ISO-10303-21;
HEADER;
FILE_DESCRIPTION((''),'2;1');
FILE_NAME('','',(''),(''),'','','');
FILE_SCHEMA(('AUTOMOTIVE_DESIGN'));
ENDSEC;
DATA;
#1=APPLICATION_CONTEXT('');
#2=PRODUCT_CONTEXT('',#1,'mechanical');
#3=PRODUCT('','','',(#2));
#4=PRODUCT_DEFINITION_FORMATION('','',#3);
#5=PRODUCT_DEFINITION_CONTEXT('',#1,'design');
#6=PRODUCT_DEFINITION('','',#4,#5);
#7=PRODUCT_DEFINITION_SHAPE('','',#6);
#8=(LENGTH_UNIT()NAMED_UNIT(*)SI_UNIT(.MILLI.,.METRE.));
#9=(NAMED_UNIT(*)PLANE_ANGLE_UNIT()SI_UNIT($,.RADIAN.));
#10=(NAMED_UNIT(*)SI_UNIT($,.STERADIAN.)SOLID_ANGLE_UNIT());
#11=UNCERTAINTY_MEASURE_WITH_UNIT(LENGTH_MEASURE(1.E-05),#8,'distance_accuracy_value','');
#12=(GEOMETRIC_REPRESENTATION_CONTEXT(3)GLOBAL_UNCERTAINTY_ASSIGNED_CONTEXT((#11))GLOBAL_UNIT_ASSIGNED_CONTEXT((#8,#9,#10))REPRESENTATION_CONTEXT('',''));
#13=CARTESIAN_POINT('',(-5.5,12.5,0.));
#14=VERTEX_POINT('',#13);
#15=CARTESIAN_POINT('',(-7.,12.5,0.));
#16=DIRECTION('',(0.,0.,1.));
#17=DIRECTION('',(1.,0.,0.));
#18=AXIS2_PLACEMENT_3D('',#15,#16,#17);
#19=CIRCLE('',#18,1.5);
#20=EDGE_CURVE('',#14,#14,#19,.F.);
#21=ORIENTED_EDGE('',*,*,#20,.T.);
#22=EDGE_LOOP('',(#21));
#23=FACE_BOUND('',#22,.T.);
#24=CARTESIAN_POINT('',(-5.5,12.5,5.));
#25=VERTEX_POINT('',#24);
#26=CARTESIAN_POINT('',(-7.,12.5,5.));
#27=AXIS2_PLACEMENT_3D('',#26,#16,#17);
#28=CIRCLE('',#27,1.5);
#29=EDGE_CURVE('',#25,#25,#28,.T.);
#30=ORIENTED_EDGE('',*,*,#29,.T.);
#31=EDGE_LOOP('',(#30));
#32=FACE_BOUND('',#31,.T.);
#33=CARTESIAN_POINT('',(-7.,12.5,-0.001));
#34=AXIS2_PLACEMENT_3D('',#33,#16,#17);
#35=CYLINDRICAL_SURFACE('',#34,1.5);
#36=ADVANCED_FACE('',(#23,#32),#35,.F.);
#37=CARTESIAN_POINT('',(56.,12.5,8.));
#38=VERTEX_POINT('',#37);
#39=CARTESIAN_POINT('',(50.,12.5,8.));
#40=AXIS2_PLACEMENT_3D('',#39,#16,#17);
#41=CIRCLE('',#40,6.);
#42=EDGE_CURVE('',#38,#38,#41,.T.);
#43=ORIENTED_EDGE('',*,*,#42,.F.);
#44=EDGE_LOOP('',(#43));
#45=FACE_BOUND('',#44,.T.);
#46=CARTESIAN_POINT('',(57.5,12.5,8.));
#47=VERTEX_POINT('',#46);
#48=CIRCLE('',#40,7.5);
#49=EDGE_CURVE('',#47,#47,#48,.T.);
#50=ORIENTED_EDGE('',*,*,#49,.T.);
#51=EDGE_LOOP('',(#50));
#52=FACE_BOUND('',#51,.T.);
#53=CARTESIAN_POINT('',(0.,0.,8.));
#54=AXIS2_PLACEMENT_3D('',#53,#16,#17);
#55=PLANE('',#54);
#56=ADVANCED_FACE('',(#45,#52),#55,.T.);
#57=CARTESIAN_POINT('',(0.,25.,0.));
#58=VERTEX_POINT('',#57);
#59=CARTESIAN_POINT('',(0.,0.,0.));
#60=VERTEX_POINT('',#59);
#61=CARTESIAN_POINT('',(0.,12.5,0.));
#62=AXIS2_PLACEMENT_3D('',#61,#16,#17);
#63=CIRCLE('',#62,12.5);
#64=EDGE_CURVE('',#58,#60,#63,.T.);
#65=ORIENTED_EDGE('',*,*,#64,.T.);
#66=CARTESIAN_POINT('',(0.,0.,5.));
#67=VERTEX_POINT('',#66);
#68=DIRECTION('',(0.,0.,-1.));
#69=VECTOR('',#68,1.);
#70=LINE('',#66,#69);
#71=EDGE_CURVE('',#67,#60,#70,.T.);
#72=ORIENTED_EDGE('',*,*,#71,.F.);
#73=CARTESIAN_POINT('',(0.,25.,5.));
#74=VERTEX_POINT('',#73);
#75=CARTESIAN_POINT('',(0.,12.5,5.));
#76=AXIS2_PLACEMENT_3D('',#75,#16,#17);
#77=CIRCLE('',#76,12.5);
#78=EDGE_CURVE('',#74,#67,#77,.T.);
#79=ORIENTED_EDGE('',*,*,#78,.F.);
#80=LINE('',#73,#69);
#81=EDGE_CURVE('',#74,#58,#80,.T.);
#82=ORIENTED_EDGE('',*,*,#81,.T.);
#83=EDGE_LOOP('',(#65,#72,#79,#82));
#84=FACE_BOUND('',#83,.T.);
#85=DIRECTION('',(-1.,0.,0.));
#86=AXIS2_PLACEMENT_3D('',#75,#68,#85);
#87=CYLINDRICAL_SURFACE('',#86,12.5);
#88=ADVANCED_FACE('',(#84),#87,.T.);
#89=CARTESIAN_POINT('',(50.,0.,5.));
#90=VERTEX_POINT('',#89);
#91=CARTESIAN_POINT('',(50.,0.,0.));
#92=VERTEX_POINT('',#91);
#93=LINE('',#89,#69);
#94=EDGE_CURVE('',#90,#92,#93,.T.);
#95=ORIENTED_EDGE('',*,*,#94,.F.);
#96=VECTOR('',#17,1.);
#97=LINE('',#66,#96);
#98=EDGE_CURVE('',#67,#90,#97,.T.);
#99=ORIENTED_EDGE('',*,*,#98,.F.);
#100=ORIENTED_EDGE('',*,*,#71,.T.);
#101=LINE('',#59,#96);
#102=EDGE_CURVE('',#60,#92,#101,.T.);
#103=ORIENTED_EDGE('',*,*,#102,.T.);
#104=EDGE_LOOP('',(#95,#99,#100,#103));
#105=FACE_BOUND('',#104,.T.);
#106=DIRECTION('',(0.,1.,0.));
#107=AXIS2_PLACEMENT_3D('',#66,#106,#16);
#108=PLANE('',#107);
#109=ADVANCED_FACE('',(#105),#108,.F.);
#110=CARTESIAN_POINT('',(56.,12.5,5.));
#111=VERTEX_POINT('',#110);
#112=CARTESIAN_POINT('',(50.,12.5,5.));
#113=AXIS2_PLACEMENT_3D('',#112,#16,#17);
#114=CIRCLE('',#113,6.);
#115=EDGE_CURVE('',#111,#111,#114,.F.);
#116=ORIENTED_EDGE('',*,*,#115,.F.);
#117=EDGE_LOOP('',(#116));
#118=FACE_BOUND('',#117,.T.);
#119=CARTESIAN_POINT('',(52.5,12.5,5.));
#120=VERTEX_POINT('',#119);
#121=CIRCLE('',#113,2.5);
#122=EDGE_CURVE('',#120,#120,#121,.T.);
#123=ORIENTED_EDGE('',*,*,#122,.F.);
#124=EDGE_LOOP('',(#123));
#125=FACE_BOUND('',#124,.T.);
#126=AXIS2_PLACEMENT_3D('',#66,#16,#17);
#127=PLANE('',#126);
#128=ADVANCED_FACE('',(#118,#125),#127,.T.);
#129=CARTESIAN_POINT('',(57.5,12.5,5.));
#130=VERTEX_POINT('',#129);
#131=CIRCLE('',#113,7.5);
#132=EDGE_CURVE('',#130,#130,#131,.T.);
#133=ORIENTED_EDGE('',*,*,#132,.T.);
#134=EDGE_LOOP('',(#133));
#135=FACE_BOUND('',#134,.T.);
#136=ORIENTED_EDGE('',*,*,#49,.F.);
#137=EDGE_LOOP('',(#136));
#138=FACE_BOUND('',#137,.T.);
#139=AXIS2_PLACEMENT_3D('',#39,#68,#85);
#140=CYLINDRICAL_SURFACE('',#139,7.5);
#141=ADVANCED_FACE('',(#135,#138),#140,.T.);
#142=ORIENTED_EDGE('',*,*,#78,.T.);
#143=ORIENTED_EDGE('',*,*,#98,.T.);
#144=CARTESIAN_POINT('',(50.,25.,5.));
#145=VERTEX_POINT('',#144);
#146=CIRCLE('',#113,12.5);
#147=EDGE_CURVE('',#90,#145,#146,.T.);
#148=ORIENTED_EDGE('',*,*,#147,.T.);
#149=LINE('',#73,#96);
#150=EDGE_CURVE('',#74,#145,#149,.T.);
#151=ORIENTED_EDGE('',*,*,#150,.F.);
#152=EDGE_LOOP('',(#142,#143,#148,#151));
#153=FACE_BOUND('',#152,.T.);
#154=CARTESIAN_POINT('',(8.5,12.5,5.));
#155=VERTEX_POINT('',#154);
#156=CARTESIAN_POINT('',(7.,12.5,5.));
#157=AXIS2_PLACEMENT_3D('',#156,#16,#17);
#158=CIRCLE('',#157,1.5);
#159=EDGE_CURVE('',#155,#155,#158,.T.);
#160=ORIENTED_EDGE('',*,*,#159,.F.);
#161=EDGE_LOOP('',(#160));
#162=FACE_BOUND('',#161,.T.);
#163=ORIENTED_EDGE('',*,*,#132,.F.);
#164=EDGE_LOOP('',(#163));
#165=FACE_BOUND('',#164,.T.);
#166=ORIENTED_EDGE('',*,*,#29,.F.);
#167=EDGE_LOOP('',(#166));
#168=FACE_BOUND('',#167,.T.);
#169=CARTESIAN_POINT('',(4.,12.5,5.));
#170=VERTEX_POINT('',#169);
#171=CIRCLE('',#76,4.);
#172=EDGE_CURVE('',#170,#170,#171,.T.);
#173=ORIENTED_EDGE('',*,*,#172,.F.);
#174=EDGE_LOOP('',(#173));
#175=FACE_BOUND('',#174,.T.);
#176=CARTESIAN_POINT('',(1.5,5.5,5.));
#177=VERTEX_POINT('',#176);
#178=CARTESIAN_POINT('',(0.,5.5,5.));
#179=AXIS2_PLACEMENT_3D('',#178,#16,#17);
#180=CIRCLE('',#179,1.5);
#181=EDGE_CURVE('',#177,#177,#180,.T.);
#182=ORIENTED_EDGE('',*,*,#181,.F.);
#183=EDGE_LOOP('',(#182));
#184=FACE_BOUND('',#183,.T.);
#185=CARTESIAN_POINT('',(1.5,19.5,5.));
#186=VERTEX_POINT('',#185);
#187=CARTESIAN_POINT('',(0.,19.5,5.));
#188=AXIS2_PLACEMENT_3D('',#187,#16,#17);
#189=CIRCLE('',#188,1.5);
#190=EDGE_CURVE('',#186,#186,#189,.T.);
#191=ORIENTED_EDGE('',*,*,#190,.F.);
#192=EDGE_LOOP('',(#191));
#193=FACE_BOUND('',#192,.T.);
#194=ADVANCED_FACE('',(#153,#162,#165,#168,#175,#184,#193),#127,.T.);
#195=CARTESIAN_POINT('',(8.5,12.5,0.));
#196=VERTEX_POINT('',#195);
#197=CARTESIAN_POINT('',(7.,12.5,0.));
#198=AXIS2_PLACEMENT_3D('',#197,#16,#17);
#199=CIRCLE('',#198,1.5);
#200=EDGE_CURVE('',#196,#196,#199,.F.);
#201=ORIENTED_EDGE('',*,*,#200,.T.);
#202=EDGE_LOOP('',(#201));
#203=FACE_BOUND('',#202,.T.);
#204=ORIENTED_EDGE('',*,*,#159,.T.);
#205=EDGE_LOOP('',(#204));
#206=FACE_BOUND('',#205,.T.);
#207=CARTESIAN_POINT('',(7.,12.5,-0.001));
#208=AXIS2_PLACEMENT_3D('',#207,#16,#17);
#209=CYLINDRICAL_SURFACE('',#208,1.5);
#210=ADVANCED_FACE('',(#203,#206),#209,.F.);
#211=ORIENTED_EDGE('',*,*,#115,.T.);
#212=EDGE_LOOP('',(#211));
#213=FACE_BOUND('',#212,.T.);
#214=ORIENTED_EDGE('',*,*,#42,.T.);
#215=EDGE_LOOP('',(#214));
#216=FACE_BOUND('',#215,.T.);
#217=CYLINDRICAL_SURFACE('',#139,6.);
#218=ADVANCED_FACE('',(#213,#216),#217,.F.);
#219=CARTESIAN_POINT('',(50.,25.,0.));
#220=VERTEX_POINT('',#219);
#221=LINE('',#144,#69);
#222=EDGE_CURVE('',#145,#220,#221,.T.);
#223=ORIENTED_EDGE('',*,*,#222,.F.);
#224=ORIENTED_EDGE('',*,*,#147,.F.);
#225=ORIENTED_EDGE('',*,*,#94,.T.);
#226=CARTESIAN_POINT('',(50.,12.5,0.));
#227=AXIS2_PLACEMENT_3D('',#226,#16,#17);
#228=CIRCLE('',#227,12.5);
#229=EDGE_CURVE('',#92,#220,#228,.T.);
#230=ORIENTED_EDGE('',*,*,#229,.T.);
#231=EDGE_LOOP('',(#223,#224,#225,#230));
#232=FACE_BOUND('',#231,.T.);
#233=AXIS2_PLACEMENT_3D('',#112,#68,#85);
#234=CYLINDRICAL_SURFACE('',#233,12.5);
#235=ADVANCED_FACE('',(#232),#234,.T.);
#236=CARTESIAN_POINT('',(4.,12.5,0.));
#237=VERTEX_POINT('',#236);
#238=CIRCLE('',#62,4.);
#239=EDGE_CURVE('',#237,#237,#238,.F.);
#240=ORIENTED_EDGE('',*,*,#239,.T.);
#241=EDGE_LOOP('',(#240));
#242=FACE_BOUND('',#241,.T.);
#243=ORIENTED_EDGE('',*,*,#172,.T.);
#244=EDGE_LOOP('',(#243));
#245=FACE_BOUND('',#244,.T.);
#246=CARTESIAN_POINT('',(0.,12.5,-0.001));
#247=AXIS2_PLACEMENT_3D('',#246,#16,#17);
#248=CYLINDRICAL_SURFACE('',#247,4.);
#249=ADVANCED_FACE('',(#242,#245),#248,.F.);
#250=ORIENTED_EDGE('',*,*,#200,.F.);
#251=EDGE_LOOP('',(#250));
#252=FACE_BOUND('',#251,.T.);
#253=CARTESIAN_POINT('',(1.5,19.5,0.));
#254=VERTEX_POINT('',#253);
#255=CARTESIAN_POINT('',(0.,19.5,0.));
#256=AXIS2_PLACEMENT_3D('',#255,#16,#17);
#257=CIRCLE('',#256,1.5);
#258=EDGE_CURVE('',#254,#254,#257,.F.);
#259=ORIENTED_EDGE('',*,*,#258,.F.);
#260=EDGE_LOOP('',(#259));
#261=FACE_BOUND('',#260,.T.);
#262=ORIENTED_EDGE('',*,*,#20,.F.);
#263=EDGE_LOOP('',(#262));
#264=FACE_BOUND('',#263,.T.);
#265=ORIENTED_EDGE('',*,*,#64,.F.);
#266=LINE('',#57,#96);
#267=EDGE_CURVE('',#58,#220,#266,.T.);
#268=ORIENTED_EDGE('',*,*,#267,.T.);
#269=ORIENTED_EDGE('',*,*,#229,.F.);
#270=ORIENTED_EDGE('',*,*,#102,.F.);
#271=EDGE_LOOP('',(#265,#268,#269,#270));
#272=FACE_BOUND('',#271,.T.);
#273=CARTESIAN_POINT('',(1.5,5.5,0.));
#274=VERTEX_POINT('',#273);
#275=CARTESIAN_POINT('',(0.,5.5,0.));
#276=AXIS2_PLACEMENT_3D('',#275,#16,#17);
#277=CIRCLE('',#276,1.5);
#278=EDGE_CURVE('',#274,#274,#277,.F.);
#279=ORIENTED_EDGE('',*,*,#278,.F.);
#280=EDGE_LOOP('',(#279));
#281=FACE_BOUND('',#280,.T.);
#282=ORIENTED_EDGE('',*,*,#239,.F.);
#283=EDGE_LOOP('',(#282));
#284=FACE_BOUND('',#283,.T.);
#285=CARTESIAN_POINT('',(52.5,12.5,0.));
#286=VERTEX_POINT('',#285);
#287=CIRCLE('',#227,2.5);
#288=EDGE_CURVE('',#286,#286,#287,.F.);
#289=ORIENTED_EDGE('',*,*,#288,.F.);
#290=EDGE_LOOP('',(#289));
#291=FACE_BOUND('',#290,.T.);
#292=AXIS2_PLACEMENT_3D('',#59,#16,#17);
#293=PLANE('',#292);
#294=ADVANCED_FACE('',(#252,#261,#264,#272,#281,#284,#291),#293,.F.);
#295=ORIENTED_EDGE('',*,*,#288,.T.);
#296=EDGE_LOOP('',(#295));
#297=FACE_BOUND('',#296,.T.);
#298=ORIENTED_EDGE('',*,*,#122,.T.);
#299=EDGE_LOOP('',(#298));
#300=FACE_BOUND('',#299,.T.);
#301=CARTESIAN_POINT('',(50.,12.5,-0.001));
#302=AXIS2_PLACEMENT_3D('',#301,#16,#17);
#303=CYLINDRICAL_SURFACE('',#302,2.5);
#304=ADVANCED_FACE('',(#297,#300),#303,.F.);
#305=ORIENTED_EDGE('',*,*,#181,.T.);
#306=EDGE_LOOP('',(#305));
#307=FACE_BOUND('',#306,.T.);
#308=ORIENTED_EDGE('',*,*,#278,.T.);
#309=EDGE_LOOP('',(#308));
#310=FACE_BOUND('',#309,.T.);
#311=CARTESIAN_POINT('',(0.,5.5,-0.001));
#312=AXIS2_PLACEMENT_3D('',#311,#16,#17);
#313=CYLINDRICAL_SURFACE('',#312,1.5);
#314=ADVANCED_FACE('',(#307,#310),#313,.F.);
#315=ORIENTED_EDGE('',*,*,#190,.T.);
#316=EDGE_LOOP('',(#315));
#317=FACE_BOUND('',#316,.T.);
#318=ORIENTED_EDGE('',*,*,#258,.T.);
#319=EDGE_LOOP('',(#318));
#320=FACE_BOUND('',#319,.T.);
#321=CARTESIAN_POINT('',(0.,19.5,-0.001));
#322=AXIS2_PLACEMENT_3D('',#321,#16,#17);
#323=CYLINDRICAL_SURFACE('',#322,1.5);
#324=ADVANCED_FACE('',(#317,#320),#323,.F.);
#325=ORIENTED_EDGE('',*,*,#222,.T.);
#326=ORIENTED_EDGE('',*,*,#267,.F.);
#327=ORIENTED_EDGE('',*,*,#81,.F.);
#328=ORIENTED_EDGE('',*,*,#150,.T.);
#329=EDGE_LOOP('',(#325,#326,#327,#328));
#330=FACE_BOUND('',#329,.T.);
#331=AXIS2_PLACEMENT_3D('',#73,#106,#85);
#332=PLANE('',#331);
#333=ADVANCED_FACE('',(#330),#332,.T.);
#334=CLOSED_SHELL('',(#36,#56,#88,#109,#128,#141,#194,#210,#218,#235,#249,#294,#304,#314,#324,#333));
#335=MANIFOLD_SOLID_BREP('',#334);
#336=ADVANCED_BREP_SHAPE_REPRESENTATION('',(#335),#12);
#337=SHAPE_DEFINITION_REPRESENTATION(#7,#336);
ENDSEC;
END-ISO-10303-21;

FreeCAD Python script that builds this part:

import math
import FreeCAD as App
import Part
import Sketcher
from FreeCAD import Vector

doc = App.newDocument("Part")
params = doc.addObject("Spreadsheet::Sheet", "Params")
for row, (alias, value) in enumerate([
    ("sketch1_radius", "12.5 mm"),
    ("sketch1_width", "50 mm"),
    ("pad1_length", "5 mm"),
    ("sketch2_diameter", "8 mm"),
    ("sketch3_diameter", "5 mm"),
    ("sketch4_diameter", "15 mm"),
    ("sketch4_diameter2", "12 mm"),
    ("pad2_length", "3 mm"),
    ("sketch5_diameter", "3 mm"),
    ("sketch6_diameter", "3 mm"),
    ("sketch7_diameter", "3 mm"),
    ("sketch8_diameter", "3 mm"),
], start=1):
    params.set(f"A{row}", alias)
    params.set(f"B{row}", "=" + value)
    params.setAlias(f"B{row}", alias)

body = doc.addObject("PartDesign::Body", "Body")

sketch1 = body.newObject("Sketcher::SketchObject", "Sketch")
sketch1.AttachmentSupport = (doc.getObject("XY_Plane"), [""])
sketch1.MapMode = "FlatFace"
sketch1.addGeometry(Part.LineSegment(Vector(0, 0, 0), Vector(50, 0, 0)), False)
sketch1.addGeometry(Part.ArcOfCircle(Part.Circle(Vector(50, 12, 0), Vector(0, 0, 1), 12), math.radians(-90), math.radians(90)), False)
sketch1.addGeometry(Part.LineSegment(Vector(50, 25, 0), Vector(0, 25, 0)), False)
sketch1.addGeometry(Part.ArcOfCircle(Part.Circle(Vector(0, 12, 0), Vector(0, 0, 1), 12), math.radians(90), math.radians(270)), False)
sketch1.addConstraint(Sketcher.Constraint("Tangent", 0, 2, 1, 1))
sketch1.addConstraint(Sketcher.Constraint("Tangent", 1, 2, 2, 1))
sketch1.addConstraint(Sketcher.Constraint("Tangent", 2, 2, 3, 1))
sketch1.addConstraint(Sketcher.Constraint("Tangent", 3, 2, 0, 1))
sketch1.addConstraint(Sketcher.Constraint("Horizontal", 0))
sketch1.addConstraint(Sketcher.Constraint("Horizontal", 2))
sketch1.addConstraint(Sketcher.Constraint("Coincident", 3, 2, -1, 1))
sketch1.addConstraint(Sketcher.Constraint("Radius", 1, 12.5))
sketch1.addConstraint(Sketcher.Constraint("DistanceX", 0, 1, 0, 2, 50.0))
sketch1.setExpression("Constraints[7]", "Params.sketch1_radius")
sketch1.setExpression("Constraints[8]", "Params.sketch1_width")
pad1 = body.newObject("PartDesign::Pad", "Pad")
pad1.Profile = sketch1
pad1.setExpression("Length", "Params.pad1_length")

sketch2 = body.newObject("Sketcher::SketchObject", "Sketch001")
sketch2.AttachmentSupport = (doc.getObject("XY_Plane"), [""])
sketch2.MapMode = "FlatFace"
sketch2.AttachmentOffset = App.Placement(Vector(0, 0, 5), App.Rotation())
sketch2.addGeometry(Part.Circle(Vector(0, 12.5, 0), Vector(0, 0, 1), 4), False)
sketch2.addConstraint(Sketcher.Constraint("PointOnObject", 0, 3, -2))
sketch2.addConstraint(Sketcher.Constraint("Diameter", 0, 8.0))
sketch2.addConstraint(Sketcher.Constraint("DistanceY", -1, 1, 0, 3, 12.5))
sketch2.setExpression("Constraints[1]", "Params.sketch2_diameter")
pocket1 = body.newObject("PartDesign::Pocket", "Pocket")
pocket1.Profile = sketch2
pocket1.Type = "UpToFirst"

sketch3 = body.newObject("Sketcher::SketchObject", "Sketch002")
sketch3.AttachmentSupport = (doc.getObject("XY_Plane"), [""])
sketch3.MapMode = "FlatFace"
sketch3.AttachmentOffset = App.Placement(Vector(0, 0, 5), App.Rotation())
sketch3.addGeometry(Part.Circle(Vector(50, 12.5, 0), Vector(0, 0, 1), 2.5), False)
sketch3.addConstraint(Sketcher.Constraint("Diameter", 0, 5.0))
sketch3.addConstraint(Sketcher.Constraint("DistanceX", -1, 1, 0, 3, 50.0))
sketch3.addConstraint(Sketcher.Constraint("DistanceY", -1, 1, 0, 3, 12.5))
sketch3.setExpression("Constraints[0]", "Params.sketch3_diameter")
pocket2 = body.newObject("PartDesign::Pocket", "Pocket001")
pocket2.Profile = sketch3
pocket2.Type = "UpToFirst"

sketch4 = body.newObject("Sketcher::SketchObject", "Sketch003")
sketch4.AttachmentSupport = (doc.getObject("XY_Plane"), [""])
sketch4.MapMode = "FlatFace"
sketch4.AttachmentOffset = App.Placement(Vector(0, 0, 5), App.Rotation())
sketch4.addGeometry(Part.Circle(Vector(50, 12, 0), Vector(0, 0, 1), 8), False)
sketch4.addGeometry(Part.Circle(Vector(50, 12, 0), Vector(0, 0, 1), 6), False)
sketch4.addConstraint(Sketcher.Constraint("Coincident", 1, 3, 0, 3))
sketch4.addConstraint(Sketcher.Constraint("Diameter", 0, 15.0))
sketch4.addConstraint(Sketcher.Constraint("Diameter", 1, 12.0))
sketch4.addConstraint(Sketcher.Constraint("DistanceX", -1, 1, 0, 3, 50.0))
sketch4.addConstraint(Sketcher.Constraint("DistanceY", -1, 1, 0, 3, 12.5))
sketch4.setExpression("Constraints[1]", "Params.sketch4_diameter")
sketch4.setExpression("Constraints[2]", "Params.sketch4_diameter2")
pad2 = body.newObject("PartDesign::Pad", "Pad001")
pad2.Profile = sketch4
pad2.setExpression("Length", "Params.pad2_length")

sketch5 = body.newObject("Sketcher::SketchObject", "Sketch004")
sketch5.AttachmentSupport = (doc.getObject("XY_Plane"), [""])
sketch5.MapMode = "FlatFace"
sketch5.AttachmentOffset = App.Placement(Vector(0, 0, 5), App.Rotation())
sketch5.addGeometry(Part.Circle(Vector(0, 19.5, 0), Vector(0, 0, 1), 1.5), False)
sketch5.addConstraint(Sketcher.Constraint("PointOnObject", 0, 3, -2))
sketch5.addConstraint(Sketcher.Constraint("Diameter", 0, 3.0))
sketch5.addConstraint(Sketcher.Constraint("DistanceY", -1, 1, 0, 3, 19.5))
sketch5.setExpression("Constraints[1]", "Params.sketch5_diameter")
pocket3 = body.newObject("PartDesign::Pocket", "Pocket002")
pocket3.Profile = sketch5
pocket3.Type = "UpToFirst"

sketch6 = body.newObject("Sketcher::SketchObject", "Sketch005")
sketch6.AttachmentSupport = (doc.getObject("XY_Plane"), [""])
sketch6.MapMode = "FlatFace"
sketch6.AttachmentOffset = App.Placement(Vector(0, 0, 5), App.Rotation())
sketch6.addGeometry(Part.Circle(Vector(0, 5.5, 0), Vector(0, 0, 1), 1.5), False)
sketch6.addConstraint(Sketcher.Constraint("PointOnObject", 0, 3, -2))
sketch6.addConstraint(Sketcher.Constraint("Diameter", 0, 3.0))
sketch6.addConstraint(Sketcher.Constraint("DistanceY", -1, 1, 0, 3, 5.5))
sketch6.setExpression("Constraints[1]", "Params.sketch6_diameter")
pocket4 = body.newObject("PartDesign::Pocket", "Pocket003")
pocket4.Profile = sketch6
pocket4.Type = "UpToFirst"

sketch7 = body.newObject("Sketcher::SketchObject", "Sketch006")
sketch7.AttachmentSupport = (doc.getObject("XY_Plane"), [""])
sketch7.MapMode = "FlatFace"
sketch7.AttachmentOffset = App.Placement(Vector(0, 0, 5), App.Rotation())
sketch7.addGeometry(Part.Circle(Vector(-7, 12.5, 0), Vector(0, 0, 1), 1.5), False)
sketch7.addConstraint(Sketcher.Constraint("Diameter", 0, 3.0))
sketch7.addConstraint(Sketcher.Constraint("DistanceX", 0, 3, -1, 1, 7.0))
sketch7.addConstraint(Sketcher.Constraint("DistanceY", -1, 1, 0, 3, 12.5))
sketch7.setExpression("Constraints[0]", "Params.sketch7_diameter")
pocket5 = body.newObject("PartDesign::Pocket", "Pocket004")
pocket5.Profile = sketch7
pocket5.Type = "UpToFirst"

sketch8 = body.newObject("Sketcher::SketchObject", "Sketch007")
sketch8.AttachmentSupport = (doc.getObject("XY_Plane"), [""])
sketch8.MapMode = "FlatFace"
sketch8.AttachmentOffset = App.Placement(Vector(0, 0, 5), App.Rotation())
sketch8.addGeometry(Part.Circle(Vector(7, 12.5, 0), Vector(0, 0, 1), 1.5), False)
sketch8.addConstraint(Sketcher.Constraint("Diameter", 0, 3.0))
sketch8.addConstraint(Sketcher.Constraint("DistanceX", -1, 1, 0, 3, 7.0))
sketch8.addConstraint(Sketcher.Constraint("DistanceY", -1, 1, 0, 3, 12.5))
sketch8.setExpression("Constraints[0]", "Params.sketch8_diameter")
pocket6 = body.newObject("PartDesign::Pocket", "Pocket005")
pocket6.Profile = sketch8
pocket6.Type = "UpToFirst"

doc.recompute()
